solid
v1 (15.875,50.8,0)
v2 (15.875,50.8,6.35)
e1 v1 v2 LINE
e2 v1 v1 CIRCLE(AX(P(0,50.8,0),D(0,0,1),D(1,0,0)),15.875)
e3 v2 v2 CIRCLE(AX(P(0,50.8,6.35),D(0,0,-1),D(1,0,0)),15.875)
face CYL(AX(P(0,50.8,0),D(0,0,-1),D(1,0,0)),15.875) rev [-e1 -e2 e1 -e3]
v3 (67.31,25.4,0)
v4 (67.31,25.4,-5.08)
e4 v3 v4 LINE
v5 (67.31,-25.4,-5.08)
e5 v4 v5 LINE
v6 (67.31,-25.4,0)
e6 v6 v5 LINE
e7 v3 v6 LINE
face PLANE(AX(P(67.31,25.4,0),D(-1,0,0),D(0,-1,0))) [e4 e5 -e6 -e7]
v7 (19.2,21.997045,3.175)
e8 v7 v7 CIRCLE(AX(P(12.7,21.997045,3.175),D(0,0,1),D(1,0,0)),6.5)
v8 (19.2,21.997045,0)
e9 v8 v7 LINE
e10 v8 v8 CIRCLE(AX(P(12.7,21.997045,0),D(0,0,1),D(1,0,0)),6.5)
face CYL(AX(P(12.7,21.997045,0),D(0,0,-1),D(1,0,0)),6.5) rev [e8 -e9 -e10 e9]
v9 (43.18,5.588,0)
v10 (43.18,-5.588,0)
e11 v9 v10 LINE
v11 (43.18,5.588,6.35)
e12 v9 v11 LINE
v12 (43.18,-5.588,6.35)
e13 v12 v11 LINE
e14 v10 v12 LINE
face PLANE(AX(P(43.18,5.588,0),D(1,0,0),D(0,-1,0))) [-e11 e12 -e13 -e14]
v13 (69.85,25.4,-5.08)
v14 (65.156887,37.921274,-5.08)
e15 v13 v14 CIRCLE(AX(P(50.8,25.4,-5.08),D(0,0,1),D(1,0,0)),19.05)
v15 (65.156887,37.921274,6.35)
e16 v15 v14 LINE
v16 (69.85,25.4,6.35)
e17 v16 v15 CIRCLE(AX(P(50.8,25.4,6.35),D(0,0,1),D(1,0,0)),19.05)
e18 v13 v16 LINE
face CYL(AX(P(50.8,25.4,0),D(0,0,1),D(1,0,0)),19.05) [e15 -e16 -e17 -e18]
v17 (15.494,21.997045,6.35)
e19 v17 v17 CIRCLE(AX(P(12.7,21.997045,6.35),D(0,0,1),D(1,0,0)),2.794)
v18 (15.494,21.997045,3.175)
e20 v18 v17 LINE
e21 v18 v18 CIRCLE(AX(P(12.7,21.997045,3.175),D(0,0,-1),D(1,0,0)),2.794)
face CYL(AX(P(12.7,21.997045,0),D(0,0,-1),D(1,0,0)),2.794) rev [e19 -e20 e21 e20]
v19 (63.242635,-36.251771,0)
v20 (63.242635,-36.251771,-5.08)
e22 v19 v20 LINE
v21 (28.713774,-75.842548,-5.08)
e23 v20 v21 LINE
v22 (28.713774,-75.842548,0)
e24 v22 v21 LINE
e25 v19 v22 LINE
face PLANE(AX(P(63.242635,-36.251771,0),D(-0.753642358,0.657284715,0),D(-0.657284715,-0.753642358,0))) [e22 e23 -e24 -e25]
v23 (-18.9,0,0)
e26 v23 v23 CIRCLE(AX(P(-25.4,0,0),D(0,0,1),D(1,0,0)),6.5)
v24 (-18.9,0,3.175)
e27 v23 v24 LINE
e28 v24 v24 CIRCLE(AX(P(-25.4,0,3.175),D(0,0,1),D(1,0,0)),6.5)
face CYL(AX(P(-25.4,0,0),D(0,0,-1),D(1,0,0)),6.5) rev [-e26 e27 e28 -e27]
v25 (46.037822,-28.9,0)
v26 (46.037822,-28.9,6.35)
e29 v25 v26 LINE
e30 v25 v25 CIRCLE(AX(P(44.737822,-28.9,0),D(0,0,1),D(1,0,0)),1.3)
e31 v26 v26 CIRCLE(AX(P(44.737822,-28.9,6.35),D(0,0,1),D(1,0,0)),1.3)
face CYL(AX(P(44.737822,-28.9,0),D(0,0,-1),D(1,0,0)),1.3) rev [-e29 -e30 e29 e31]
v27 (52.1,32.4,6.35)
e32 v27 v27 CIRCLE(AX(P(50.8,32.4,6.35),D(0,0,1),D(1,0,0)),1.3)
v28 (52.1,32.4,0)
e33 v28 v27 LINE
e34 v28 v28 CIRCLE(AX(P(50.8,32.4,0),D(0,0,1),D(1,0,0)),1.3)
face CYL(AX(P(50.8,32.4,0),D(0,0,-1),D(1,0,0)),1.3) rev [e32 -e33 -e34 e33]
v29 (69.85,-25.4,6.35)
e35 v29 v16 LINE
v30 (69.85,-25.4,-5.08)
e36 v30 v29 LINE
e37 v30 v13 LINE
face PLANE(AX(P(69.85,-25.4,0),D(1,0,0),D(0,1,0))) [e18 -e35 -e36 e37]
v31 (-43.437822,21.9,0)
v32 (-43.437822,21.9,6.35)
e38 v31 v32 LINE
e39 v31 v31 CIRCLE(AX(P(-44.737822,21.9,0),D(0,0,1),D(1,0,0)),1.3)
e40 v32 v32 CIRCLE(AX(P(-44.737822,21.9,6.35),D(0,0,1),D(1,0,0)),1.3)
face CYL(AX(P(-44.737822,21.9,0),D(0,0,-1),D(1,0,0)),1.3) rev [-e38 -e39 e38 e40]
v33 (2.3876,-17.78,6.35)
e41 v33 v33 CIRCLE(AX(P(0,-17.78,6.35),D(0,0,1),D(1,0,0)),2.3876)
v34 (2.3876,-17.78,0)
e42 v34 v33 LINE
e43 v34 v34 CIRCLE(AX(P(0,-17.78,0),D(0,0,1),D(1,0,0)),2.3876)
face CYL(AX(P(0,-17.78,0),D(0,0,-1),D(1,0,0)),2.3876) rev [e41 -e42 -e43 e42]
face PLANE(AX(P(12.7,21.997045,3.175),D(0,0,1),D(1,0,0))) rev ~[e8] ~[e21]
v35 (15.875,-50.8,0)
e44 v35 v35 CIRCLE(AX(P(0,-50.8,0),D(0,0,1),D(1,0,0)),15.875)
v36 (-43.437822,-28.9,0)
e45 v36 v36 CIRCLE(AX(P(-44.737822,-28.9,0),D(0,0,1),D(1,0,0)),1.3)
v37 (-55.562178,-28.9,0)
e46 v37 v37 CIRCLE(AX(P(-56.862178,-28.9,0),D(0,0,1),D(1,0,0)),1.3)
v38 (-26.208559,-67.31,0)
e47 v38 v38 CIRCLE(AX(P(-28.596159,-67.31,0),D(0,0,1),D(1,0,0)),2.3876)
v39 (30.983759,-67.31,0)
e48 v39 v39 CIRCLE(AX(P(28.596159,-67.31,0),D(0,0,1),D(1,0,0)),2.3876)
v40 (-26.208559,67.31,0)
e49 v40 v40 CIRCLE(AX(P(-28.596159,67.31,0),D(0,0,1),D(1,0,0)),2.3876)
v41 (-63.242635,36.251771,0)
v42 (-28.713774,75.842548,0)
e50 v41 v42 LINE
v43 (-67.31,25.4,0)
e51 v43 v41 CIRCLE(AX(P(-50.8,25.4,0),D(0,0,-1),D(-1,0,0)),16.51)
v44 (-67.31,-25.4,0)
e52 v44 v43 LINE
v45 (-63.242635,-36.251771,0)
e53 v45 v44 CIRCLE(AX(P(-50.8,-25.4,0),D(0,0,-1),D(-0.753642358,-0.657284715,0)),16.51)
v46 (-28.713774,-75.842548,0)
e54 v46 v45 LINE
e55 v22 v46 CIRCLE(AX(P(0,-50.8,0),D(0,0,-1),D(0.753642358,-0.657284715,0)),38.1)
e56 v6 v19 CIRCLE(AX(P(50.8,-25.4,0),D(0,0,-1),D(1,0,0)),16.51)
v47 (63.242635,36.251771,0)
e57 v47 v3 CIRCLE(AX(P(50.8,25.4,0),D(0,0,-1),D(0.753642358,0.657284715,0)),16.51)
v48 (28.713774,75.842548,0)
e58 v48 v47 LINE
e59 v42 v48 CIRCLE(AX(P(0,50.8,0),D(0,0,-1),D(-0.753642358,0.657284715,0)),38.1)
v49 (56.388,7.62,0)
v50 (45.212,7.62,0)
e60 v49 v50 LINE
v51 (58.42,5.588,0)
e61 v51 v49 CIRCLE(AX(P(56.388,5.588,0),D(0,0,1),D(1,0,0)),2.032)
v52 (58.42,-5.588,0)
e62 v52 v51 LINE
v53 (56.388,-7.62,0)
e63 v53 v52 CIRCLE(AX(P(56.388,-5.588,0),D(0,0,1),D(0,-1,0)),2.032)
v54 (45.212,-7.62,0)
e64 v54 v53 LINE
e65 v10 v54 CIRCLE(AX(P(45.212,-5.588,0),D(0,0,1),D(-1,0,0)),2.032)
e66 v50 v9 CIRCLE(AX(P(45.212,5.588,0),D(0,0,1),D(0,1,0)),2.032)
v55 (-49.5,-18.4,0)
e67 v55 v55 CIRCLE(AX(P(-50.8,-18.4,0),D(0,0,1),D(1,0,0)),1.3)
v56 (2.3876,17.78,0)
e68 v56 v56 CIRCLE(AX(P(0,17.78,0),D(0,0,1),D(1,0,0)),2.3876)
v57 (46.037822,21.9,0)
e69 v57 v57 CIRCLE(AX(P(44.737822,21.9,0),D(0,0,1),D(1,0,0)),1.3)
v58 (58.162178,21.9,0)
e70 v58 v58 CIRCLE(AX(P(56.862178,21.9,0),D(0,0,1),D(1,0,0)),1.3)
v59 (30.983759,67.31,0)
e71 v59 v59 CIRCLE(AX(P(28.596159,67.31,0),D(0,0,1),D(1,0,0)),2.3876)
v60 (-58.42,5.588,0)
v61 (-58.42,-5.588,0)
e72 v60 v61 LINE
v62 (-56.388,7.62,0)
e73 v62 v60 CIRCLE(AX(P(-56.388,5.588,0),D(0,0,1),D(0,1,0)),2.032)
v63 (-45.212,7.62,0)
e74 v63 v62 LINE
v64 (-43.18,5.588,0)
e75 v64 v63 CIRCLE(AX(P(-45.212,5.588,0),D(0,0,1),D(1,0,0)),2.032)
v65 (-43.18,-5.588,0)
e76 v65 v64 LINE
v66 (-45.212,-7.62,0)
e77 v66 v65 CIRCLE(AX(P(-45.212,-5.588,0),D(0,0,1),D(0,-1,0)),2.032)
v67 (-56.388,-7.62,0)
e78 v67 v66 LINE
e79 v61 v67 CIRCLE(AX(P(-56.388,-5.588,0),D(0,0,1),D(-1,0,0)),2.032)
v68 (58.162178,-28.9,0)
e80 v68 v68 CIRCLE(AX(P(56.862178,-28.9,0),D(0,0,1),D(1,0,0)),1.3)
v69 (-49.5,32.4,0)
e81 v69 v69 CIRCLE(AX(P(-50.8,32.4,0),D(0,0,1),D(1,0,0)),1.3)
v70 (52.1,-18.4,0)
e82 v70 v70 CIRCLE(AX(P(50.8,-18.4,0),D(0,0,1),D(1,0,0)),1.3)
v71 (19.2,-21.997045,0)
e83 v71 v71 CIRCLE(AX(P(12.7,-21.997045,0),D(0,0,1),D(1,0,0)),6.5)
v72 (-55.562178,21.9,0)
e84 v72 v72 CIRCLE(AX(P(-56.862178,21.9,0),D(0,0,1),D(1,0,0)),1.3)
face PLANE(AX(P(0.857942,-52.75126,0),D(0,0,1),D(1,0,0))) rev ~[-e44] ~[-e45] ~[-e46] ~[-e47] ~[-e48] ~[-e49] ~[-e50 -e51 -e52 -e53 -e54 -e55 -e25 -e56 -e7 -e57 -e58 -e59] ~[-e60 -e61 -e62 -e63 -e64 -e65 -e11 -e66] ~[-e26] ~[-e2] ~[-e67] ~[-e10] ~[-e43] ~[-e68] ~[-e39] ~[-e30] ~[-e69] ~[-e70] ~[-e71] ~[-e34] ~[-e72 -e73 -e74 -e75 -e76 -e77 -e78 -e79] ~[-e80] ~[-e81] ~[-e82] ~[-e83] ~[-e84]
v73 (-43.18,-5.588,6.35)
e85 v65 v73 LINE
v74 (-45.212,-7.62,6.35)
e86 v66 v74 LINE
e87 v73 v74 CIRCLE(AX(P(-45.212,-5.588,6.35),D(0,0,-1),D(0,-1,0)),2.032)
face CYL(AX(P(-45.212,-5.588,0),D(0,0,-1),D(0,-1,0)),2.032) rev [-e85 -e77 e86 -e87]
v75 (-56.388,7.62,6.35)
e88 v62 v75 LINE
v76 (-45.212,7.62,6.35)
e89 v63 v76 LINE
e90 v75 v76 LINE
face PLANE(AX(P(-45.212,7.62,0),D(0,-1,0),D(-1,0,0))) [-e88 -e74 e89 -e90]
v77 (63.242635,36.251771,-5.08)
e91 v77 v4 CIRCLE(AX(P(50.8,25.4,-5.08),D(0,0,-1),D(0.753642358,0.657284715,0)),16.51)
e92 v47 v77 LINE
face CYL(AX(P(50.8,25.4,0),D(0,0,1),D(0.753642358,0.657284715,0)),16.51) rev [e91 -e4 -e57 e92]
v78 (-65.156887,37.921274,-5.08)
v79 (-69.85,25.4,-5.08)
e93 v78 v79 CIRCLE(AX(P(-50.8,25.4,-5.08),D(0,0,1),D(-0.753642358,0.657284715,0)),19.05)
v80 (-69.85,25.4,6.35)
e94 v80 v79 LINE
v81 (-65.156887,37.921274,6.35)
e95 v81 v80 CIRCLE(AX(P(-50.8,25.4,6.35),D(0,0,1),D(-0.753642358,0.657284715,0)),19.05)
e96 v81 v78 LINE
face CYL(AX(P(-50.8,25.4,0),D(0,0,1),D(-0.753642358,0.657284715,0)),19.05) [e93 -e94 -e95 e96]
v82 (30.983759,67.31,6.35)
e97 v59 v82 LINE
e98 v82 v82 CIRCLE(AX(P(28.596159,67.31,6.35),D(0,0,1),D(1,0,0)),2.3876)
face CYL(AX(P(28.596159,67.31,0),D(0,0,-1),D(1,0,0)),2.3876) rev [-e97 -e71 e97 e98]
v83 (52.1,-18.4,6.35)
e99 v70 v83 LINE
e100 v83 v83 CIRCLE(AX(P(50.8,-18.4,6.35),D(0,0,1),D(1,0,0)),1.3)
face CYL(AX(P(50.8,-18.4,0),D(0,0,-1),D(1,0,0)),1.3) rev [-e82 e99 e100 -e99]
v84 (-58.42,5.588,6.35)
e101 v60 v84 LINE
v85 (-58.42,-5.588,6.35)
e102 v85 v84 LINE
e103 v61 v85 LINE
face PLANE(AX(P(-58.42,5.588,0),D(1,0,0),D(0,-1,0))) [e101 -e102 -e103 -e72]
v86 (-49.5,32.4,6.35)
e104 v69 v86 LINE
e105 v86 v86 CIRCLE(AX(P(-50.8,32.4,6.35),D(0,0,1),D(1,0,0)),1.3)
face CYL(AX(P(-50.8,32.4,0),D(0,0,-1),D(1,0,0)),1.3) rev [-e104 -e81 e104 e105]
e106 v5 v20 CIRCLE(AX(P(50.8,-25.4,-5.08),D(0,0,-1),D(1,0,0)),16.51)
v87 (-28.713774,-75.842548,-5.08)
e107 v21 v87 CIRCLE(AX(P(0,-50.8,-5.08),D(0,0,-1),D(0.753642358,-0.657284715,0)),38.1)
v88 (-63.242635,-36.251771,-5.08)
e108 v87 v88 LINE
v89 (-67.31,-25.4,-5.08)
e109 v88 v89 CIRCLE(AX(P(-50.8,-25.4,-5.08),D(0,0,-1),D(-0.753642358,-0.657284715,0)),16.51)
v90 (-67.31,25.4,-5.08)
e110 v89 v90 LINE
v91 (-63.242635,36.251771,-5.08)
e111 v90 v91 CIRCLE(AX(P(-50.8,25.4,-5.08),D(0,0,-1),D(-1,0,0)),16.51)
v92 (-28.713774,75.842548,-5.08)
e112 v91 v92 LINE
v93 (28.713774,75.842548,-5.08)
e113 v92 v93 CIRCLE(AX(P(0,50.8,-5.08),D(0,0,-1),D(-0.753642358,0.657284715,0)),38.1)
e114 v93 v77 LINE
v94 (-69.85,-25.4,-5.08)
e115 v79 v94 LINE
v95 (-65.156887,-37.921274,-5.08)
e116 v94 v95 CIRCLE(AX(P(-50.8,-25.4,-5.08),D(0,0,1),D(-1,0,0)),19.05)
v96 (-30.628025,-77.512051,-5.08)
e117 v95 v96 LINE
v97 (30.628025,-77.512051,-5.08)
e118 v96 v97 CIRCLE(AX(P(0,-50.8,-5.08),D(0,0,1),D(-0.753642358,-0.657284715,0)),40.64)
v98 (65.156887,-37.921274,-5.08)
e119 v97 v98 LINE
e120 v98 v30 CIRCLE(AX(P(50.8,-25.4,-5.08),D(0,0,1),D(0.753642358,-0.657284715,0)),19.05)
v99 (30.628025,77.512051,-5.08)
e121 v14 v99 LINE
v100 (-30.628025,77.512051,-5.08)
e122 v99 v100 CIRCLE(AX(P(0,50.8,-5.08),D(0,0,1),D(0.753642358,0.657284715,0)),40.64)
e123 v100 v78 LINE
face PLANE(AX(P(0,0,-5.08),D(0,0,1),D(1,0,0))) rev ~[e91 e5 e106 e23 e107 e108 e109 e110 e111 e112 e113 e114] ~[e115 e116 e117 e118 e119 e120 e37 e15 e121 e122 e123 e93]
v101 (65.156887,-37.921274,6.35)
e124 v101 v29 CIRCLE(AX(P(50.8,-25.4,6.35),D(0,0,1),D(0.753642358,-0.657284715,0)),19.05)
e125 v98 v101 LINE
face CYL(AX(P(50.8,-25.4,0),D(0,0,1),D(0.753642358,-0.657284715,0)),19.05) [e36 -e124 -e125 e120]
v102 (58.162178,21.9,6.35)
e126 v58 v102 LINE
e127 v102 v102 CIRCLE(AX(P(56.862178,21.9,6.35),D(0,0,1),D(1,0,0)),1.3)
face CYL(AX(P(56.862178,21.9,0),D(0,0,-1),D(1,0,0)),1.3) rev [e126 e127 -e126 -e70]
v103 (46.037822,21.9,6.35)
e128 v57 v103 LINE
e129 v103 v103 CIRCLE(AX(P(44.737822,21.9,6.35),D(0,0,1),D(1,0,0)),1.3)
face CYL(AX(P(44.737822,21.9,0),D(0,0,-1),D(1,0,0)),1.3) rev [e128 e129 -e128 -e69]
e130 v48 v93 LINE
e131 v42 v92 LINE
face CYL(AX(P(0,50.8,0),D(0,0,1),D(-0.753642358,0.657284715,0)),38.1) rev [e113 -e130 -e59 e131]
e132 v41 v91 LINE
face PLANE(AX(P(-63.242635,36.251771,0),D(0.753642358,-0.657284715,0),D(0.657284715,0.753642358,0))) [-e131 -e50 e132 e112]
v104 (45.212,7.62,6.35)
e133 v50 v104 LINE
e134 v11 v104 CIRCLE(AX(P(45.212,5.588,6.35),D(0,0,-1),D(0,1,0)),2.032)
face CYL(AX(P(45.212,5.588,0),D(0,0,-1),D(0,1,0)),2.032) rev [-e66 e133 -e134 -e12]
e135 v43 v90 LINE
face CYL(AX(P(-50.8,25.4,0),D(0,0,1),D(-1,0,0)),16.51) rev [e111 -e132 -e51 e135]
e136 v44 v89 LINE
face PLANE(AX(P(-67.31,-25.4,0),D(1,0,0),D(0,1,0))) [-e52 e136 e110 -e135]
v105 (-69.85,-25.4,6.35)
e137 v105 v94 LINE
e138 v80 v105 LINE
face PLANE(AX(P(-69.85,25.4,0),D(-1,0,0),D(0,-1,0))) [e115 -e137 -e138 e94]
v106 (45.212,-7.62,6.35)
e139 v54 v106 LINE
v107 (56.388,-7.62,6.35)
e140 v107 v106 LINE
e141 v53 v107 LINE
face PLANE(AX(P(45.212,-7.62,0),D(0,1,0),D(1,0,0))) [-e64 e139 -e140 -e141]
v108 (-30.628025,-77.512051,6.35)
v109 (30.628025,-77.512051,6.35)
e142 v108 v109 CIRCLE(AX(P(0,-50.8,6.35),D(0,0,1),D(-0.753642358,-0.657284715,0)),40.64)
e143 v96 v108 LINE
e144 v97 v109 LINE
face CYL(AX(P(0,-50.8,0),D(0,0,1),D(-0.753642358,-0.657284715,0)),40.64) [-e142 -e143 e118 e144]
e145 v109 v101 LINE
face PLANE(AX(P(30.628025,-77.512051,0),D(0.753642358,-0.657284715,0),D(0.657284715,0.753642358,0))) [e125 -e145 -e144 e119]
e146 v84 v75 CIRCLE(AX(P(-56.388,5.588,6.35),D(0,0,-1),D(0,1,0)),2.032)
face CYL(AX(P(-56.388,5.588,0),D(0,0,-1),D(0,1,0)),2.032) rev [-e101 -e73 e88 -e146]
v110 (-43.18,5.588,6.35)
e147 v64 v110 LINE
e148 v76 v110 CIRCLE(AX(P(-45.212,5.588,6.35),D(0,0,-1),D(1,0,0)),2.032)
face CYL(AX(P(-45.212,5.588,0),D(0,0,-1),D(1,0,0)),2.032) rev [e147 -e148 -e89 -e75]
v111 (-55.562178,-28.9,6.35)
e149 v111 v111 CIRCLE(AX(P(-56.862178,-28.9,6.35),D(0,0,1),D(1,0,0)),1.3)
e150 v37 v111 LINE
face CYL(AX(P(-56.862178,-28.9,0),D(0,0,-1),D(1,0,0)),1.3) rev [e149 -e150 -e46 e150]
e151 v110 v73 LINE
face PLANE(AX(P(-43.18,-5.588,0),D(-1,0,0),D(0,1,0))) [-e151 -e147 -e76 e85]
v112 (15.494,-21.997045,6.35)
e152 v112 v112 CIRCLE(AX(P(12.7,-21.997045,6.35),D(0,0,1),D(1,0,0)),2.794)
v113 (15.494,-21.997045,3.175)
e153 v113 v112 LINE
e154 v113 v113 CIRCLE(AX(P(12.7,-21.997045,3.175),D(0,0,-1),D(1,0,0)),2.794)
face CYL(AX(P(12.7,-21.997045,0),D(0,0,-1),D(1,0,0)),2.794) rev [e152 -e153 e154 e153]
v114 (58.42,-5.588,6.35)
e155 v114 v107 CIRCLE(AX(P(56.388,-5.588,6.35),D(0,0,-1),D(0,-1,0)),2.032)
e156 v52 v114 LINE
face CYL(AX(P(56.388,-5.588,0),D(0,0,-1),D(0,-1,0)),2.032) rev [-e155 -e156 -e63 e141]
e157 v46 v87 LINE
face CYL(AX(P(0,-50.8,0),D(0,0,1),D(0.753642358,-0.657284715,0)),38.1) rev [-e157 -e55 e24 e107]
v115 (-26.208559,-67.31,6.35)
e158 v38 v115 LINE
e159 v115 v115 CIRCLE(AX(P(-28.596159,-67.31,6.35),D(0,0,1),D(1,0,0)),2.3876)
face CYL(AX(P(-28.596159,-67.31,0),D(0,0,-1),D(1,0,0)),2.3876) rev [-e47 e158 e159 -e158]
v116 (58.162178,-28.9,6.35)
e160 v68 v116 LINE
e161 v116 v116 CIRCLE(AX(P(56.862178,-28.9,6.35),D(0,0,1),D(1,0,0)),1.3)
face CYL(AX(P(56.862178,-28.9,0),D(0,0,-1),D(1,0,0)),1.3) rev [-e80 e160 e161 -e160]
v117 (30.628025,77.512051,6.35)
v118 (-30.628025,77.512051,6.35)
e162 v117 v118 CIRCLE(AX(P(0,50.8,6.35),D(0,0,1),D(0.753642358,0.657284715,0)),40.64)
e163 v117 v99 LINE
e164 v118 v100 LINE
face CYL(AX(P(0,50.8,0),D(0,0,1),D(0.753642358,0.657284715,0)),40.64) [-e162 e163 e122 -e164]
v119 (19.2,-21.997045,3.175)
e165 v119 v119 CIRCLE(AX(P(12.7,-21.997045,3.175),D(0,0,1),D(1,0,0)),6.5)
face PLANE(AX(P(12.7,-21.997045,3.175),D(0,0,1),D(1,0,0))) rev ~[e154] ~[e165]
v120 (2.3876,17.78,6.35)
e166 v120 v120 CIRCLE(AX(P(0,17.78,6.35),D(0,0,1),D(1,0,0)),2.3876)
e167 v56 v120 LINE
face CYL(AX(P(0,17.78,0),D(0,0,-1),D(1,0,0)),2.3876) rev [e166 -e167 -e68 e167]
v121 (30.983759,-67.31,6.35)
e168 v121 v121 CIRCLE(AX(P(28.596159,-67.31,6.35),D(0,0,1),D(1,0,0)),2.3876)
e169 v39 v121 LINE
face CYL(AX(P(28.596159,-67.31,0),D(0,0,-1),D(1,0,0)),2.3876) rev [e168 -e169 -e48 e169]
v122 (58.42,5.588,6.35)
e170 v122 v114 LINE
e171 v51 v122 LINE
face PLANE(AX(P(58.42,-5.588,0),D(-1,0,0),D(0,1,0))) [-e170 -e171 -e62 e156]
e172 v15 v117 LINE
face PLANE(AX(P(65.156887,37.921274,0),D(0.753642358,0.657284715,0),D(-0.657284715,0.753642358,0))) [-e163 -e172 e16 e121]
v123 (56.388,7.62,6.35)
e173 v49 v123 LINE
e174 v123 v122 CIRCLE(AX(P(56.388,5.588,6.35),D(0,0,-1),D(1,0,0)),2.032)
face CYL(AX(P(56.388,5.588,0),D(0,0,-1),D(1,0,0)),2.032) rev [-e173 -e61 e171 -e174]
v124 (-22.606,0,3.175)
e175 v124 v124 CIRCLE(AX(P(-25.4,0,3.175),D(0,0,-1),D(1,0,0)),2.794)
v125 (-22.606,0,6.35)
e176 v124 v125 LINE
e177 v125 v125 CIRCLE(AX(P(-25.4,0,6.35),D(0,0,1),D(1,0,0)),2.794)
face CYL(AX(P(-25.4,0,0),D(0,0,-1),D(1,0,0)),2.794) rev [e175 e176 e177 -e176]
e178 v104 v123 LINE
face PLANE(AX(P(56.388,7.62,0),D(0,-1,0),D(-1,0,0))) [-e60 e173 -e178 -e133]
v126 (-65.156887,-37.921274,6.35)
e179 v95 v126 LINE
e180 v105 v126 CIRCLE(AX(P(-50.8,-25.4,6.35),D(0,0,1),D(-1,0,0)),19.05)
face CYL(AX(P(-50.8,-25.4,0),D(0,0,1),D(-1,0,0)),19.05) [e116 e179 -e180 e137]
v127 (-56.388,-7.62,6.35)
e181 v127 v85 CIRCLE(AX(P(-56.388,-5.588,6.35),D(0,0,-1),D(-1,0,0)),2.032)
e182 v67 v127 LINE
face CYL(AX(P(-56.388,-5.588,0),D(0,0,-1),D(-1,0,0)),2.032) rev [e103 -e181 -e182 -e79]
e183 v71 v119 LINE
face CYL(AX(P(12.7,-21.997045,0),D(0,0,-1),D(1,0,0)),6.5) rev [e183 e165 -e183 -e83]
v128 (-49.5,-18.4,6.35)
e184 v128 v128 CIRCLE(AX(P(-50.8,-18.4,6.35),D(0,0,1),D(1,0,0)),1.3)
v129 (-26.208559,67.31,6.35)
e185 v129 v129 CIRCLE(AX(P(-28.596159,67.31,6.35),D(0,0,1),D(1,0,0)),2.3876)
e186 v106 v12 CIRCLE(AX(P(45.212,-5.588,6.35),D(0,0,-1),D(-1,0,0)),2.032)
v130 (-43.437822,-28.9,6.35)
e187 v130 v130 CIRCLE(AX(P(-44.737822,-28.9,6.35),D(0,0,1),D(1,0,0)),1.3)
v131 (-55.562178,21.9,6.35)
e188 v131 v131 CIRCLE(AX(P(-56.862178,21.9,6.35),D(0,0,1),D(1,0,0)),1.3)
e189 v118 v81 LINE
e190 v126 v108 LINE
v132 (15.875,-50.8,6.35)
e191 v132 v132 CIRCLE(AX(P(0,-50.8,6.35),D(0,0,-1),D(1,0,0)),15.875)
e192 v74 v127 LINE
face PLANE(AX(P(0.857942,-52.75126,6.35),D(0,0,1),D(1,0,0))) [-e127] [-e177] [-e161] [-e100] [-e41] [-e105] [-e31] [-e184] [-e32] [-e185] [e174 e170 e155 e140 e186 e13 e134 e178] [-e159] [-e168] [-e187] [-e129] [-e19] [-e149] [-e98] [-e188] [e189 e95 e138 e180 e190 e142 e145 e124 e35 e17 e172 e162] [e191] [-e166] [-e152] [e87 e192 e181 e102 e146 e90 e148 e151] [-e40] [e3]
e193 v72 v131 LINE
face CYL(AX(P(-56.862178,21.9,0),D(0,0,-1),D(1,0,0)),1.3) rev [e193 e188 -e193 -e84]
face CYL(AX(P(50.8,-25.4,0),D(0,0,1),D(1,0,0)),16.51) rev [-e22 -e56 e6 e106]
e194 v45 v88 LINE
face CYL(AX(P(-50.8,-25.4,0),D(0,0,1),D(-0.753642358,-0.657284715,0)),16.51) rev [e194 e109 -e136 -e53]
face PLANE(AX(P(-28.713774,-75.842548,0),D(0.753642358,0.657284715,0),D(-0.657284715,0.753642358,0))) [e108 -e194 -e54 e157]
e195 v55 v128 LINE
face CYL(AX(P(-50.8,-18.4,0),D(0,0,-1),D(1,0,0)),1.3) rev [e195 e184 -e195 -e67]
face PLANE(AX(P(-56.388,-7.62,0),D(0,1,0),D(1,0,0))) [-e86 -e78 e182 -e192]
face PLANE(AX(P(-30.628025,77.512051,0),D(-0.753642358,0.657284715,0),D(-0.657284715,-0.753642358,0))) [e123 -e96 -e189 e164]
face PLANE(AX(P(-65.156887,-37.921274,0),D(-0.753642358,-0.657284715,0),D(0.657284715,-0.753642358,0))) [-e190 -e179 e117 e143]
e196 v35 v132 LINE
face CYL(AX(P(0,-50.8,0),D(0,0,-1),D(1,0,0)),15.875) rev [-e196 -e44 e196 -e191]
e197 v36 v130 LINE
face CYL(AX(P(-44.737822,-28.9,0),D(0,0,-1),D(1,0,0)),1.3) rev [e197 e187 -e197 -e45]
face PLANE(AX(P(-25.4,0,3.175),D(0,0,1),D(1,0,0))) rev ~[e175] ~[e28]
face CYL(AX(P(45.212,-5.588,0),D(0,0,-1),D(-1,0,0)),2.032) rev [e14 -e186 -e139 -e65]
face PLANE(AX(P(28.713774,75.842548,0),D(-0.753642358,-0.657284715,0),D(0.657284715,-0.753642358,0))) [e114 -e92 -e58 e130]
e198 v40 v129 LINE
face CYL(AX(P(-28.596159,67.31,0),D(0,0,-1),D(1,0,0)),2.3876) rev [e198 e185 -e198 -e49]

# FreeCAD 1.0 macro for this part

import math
import FreeCAD as App
import Part
import Sketcher
from FreeCAD import Vector
Q = App.Units.Quantity

doc = App.newDocument("Part")
params = doc.addObject("Spreadsheet::Sheet", "Params")
for row, (alias, value) in enumerate([
    ("sketch1_radius", "1.6 in"),
    ("sketch1_diameter", "0.22 in"),
    ("sketch1_height", "2 in"),
    ("sketch1_radius2", "0.75 in"),
    ("sketch1_diameter2", "0.188 in"),
    ("pad1_length", "0.25 in"),
    ("pocket1_length", "0.125 in"),
    ("sketch3_radius", "1.6 in"),
    ("sketch3_radius2", "1.5 in"),
    ("sketch3_height", "2 in"),
    ("sketch3_radius3", "0.75 in"),
    ("pad2_length", "0.2 in"),
    ("sketch4_diameter", "1.25 in"),
    ("sketch4_radius", "0.08 in"),
    ("sketch4_width", "0.44 in"),
    ("pocket2_length", "1 in"),
], start=1):
    params.set(f"A{row}", alias)
    params.set(f"B{row}", "=" + value)
    params.setAlias(f"B{row}", alias)

body = doc.addObject("PartDesign::Body", "Body")

# Sketch on XY plane
sketch1 = body.newObject("Sketcher::SketchObject", "Sketch")
sketch1.AttachmentSupport = (doc.getObject("XY_Plane"), [""])
sketch1.MapMode = "FlatFace"
sketch1.addGeometry(Part.ArcOfCircle(Part.Circle(Vector(0, -50.8, 0), Vector(0, 0, 1), 40.64), math.radians(-138.906883), math.radians(-41.093117)), False)
sketch1.addGeometry(Part.LineSegment(Vector(30.628025, -77.512051, 0), Vector(65.156887, -37.921274, 0)), False)
sketch1.addGeometry(Part.ArcOfCircle(Part.Circle(Vector(50.8, -25.4, 0), Vector(0, 0, 1), 19.05), math.radians(-41.093117), math.radians(0)), False)
sketch1.addGeometry(Part.LineSegment(Vector(69.85, -25.4, 0), Vector(69.85, 25.4, 0)), False)
sketch1.addGeometry(Part.ArcOfCircle(Part.Circle(Vector(50.8, 25.4, 0), Vector(0, 0, 1), 19.05), math.radians(0), math.radians(41.093117)), False)
sketch1.addGeometry(Part.LineSegment(Vector(65.156887, 37.921274, 0), Vector(30.628025, 77.512051, 0)), False)
sketch1.addGeometry(Part.ArcOfCircle(Part.Circle(Vector(0, 50.8, 0), Vector(0, 0, 1), 40.64), math.radians(41.093117), math.radians(138.906883)), False)
sketch1.addGeometry(Part.LineSegment(Vector(-30.628025, 77.512051, 0), Vector(-65.156887, 37.921274, 0)), False)
sketch1.addGeometry(Part.ArcOfCircle(Part.Circle(Vector(-50.8, 25.4, 0), Vector(0, 0, 1), 19.05), math.radians(138.906883), math.radians(180)), False)
sketch1.addGeometry(Part.LineSegment(Vector(-69.85, 25.4, 0), Vector(-69.85, -25.4, 0)), False)
sketch1.addGeometry(Part.ArcOfCircle(Part.Circle(Vector(-50.8, -25.4, 0), Vector(0, 0, 1), 19.05), math.radians(180), math.radians(221.093117)), False)
sketch1.addGeometry(Part.LineSegment(Vector(-65.156887, -37.921274, 0), Vector(-30.628025, -77.512051, 0)), False)
sketch1.addGeometry(Part.Circle(Vector(-28.596159, -67.31, 0), Vector(0, 0, 1), 2.3876), False)
sketch1.addGeometry(Part.Circle(Vector(-56.862178, -28.9, 0), Vector(0, 0, 1), 1.3), False)
sketch1.addGeometry(Part.Circle(Vector(-44.737822, -28.9, 0), Vector(0, 0, 1), 1.3), False)
sketch1.addGeometry(Part.Circle(Vector(-50.8, -18.4, 0), Vector(0, 0, 1), 1.3), False)
sketch1.addGeometry(Part.Circle(Vector(28.596159, -67.31, 0), Vector(0, 0, 1), 2.3876), False)
sketch1.addGeometry(Part.Circle(Vector(0, -17.78, 0), Vector(0, 0, 1), 2.3876), False)
sketch1.addGeometry(Part.Circle(Vector(12.7, -21.997045, 0), Vector(0, 0, 1), 2.794), False)
sketch1.addGeometry(Part.Circle(Vector(44.737822, -28.9, 0), Vector(0, 0, 1), 1.3), False)
sketch1.addGeometry(Part.Circle(Vector(56.862178, -28.9, 0), Vector(0, 0, 1), 1.3), False)
sketch1.addGeometry(Part.Circle(Vector(50.8, -18.4, 0), Vector(0, 0, 1), 1.3), False)
sketch1.addGeometry(Part.Circle(Vector(-56.862178, 21.9, 0), Vector(0, 0, 1), 1.3), False)
sketch1.addGeometry(Part.Circle(Vector(-44.737822, 21.9, 0), Vector(0, 0, 1), 1.3), False)
sketch1.addGeometry(Part.Circle(Vector(-50.8, 32.4, 0), Vector(0, 0, 1), 1.3), False)
sketch1.addGeometry(Part.Circle(Vector(-25.4, 0, 0), Vector(0, 0, 1), 2.794), False)
sketch1.addGeometry(Part.Circle(Vector(-28.596159, 67.31, 0), Vector(0, 0, 1), 2.3876), False)
sketch1.addGeometry(Part.Circle(Vector(0, 17.78, 0), Vector(0, 0, 1), 2.3876), False)
sketch1.addGeometry(Part.Circle(Vector(12.7, 21.997045, 0), Vector(0, 0, 1), 2.794), False)
sketch1.addGeometry(Part.Circle(Vector(44.737822, 21.9, 0), Vector(0, 0, 1), 1.3), False)
sketch1.addGeometry(Part.Circle(Vector(56.862178, 21.9, 0), Vector(0, 0, 1), 1.3), False)
sketch1.addGeometry(Part.Circle(Vector(50.8, 32.4, 0), Vector(0, 0, 1), 1.3), False)
sketch1.addGeometry(Part.Circle(Vector(28.596159, 67.31, 0), Vector(0, 0, 1), 2.3876), False)
sketch1.addConstraint(Sketcher.Constraint("Tangent", 0, 2, 1, 1))
sketch1.addConstraint(Sketcher.Constraint("Tangent", 1, 2, 2, 1))
sketch1.addConstraint(Sketcher.Constraint("Tangent", 2, 2, 3, 1))
sketch1.addConstraint(Sketcher.Constraint("Tangent", 3, 2, 4, 1))
sketch1.addConstraint(Sketcher.Constraint("Tangent", 4, 2, 5, 1))
sketch1.addConstraint(Sketcher.Constraint("Tangent", 5, 2, 6, 1))
sketch1.addConstraint(Sketcher.Constraint("Tangent", 6, 2, 7, 1))
sketch1.addConstraint(Sketcher.Constraint("Tangent", 7, 2, 8, 1))
sketch1.addConstraint(Sketcher.Constraint("Tangent", 8, 2, 9, 1))
sketch1.addConstraint(Sketcher.Constraint("Tangent", 9, 2, 10, 1))
sketch1.addConstraint(Sketcher.Constraint("Tangent", 10, 2, 11, 1))
sketch1.addConstraint(Sketcher.Constraint("Tangent", 11, 2, 0, 1))
sketch1.addConstraint(Sketcher.Constraint("Vertical", 3))
sketch1.addConstraint(Sketcher.Constraint("Vertical", 9))
sketch1.addConstraint(Sketcher.Constraint("Equal", 2, 4))
sketch1.addConstraint(Sketcher.Constraint("Equal", 0, 6))
sketch1.addConstraint(Sketcher.Constraint("Equal", 4, 8))
sketch1.addConstraint(Sketcher.Constraint("Equal", 8, 10))
sketch1.addConstraint(Sketcher.Constraint("Equal", 13, 14))
sketch1.addConstraint(Sketcher.Constraint("Equal", 14, 15))
sketch1.addConstraint(Sketcher.Constraint("Equal", 12, 16))
sketch1.addConstraint(Sketcher.Constraint("Equal", 16, 17))
sketch1.addConstraint(Sketcher.Constraint("Equal", 15, 19))
sketch1.addConstraint(Sketcher.Constraint("Equal", 19, 20))
sketch1.addConstraint(Sketcher.Constraint("Equal", 20, 21))
sketch1.addConstraint(Sketcher.Constraint("Equal", 21, 22))
sketch1.addConstraint(Sketcher.Constraint("Equal", 22, 23))
sketch1.addConstraint(Sketcher.Constraint("Equal", 23, 24))
sketch1.addConstraint(Sketcher.Constraint("Equal", 18, 25))
sketch1.addConstraint(Sketcher.Constraint("Equal", 17, 26))
sketch1.addConstraint(Sketcher.Constraint("Equal", 26, 27))
sketch1.addConstraint(Sketcher.Constraint("Equal", 25, 28))
sketch1.addConstraint(Sketcher.Constraint("Equal", 24, 29))
sketch1.addConstraint(Sketcher.Constraint("Equal", 29, 30))
sketch1.addConstraint(Sketcher.Constraint("Equal", 30, 31))
sketch1.addConstraint(Sketcher.Constraint("Equal", 27, 32))
sketch1.addConstraint(Sketcher.Constraint("Symmetric", 0, 3, 6, 3, -1, 1))
sketch1.addConstraint(Sketcher.Constraint("Symmetric", 2, 3, 8, 3, -1, 1))
sketch1.addConstraint(Sketcher.Constraint("Symmetric", 16, 3, 26, 3, -1, 1))
sketch1.addConstraint(Sketcher.Constraint("Symmetric", 17, 3, 27, 3, -1, 1))
sketch1.addConstraint(Sketcher.Constraint("Symmetric", 12, 3, 32, 3, -1, 1))
sketch1.addConstraint(Sketcher.Constraint("Symmetric", 12, 3, 16, 3, -2))
sketch1.addConstraint(Sketcher.Constraint("Symmetric", 14, 3, 19, 3, -2))
sketch1.addConstraint(Sketcher.Constraint("Symmetric", 13, 3, 20, 3, -2))
sketch1.addConstraint(Sketcher.Constraint("Symmetric", 15, 3, 21, 3, -2))
sketch1.addConstraint(Sketcher.Constraint("Symmetric", 23, 3, 29, 3, -2))
sketch1.addConstraint(Sketcher.Constraint("Symmetric", 22, 3, 30, 3, -2))
sketch1.addConstraint(Sketcher.Constraint("Symmetric", 24, 3, 31, 3, -2))
sketch1.addConstraint(Sketcher.Constraint("Symmetric", 5, 2, 6, 2, -2))
sketch1.addConstraint(Sketcher.Constraint("Symmetric", 18, 3, 28, 3, -1))
sketch1.addConstraint(Sketcher.Constraint("PointOnObject", 17, 3, -2))
sketch1.addConstraint(Sketcher.Constraint("PointOnObject", 25, 3, -1))
sketch1.addConstraint(Sketcher.Constraint("Parallel", 5, 11))
sketch1.addConstraint(Sketcher.Constraint("Horizontal", 13, 3, 14, 3))
sketch1.addConstraint(Sketcher.Constraint("Horizontal", 22, 3, 23, 3))
sketch1.addConstraint(Sketcher.Constraint("Vertical", 10, 3, 15, 3))
sketch1.addConstraint(Sketcher.Constraint("Vertical", 13, 3, 22, 3))
sketch1.addConstraint(Sketcher.Constraint("Vertical", 14, 3, 23, 3))
sketch1.addConstraint(Sketcher.Constraint("Vertical", 15, 3, 24, 3))
sketch1.addConstraint(Sketcher.Constraint("Radius", 0, Q("1.6 in")))
sketch1.addConstraint(Sketcher.Constraint("Diameter", 18, Q("0.22 in")))
sketch1.addConstraint(Sketcher.Constraint("DistanceY", 3, 1, 3, 2, Q("2 in")))
sketch1.addConstraint(Sketcher.Constraint("Radius", 2, Q("0.75 in")))
sketch1.addConstraint(Sketcher.Constraint("Diameter", 12, Q("0.188 in")))
sketch1.addConstraint(Sketcher.Constraint("DistanceY", 0, 3, -1, 1, Q("2 in")))
sketch1.addConstraint(Sketcher.Constraint("DistanceX", -1, 1, 2, 3, Q("2 in")))
sketch1.addConstraint(Sketcher.Constraint("DistanceX", 25, 3, -1, 1, Q("1 in")))
sketch1.addConstraint(Sketcher.Constraint("DistanceY", 13, 3, 22, 3, Q("2 in")))
sketch1.addConstraint(Sketcher.Constraint("DistanceY", 15, 3, 24, 3, Q("2 in")))
sketch1.addConstraint(Sketcher.Constraint("DistanceY", 17, 3, -1, 1, Q("0.7 in")))
sketch1.addConstraint(Sketcher.Constraint("DistanceX", -1, 1, 18, 3, Q("0.5 in")))
sketch1.addConstraint(Sketcher.Constraint("Diameter", 13, 2.6))
sketch1.addConstraint(Sketcher.Constraint("DistanceY", 12, 3, -1, 1, Q("2.65 in")))
sketch1.addConstraint(Sketcher.Constraint("DistanceX", 19, 3, 1, 2, Q("0.8039002 in")))
sketch1.addConstraint(Sketcher.Constraint("DistanceY", 13, 3, -1, 1, 28.9))
sketch1.addConstraint(Sketcher.Constraint("DistanceY", 15, 3, -1, 1, 18.4))
sketch1.addConstraint(Sketcher.Constraint("DistanceX", 12, 3, -1, 1, 28.596159))
sketch1.addConstraint(Sketcher.Constraint("DistanceX", 13, 3, 12, 3, 28.266019))
sketch1.addConstraint(Sketcher.Constraint("DistanceY", 18, 3, 28, 3, 43.994091))
sketch1.setExpression("Constraints[59]", "Params.sketch1_radius")
sketch1.setExpression("Constraints[60]", "Params.sketch1_diameter")
sketch1.setExpression("Constraints[61]", "Params.sketch1_height")
sketch1.setExpression("Constraints[62]", "Params.sketch1_radius2")
sketch1.setExpression("Constraints[63]", "Params.sketch1_diameter2")
pad1 = body.newObject("PartDesign::Pad", "Pad")
pad1.Profile = sketch1
pad1.setExpression("Length", "Params.pad1_length")

# Sketch on XY plane
sketch2 = body.newObject("Sketcher::SketchObject", "Sketch001")
sketch2.AttachmentSupport = (doc.getObject("XY_Plane"), [""])
sketch2.MapMode = "FlatFace"
sketch2.addGeometry(Part.Circle(Vector(-25.4, 0, 0), Vector(0, 0, 1), 6.5), False)
sketch2.addGeometry(Part.Circle(Vector(12.7, 21.997045, 0), Vector(0, 0, 1), 6.5), False)
sketch2.addGeometry(Part.Circle(Vector(12.7, -21.997045, 0), Vector(0, 0, 1), 6.5), False)
sketch2.addConstraint(Sketcher.Constraint("Equal", 0, 1))
sketch2.addConstraint(Sketcher.Constraint("Equal", 1, 2))
sketch2.addConstraint(Sketcher.Constraint("Symmetric", 1, 3, 2, 3, -1))
sketch2.addConstraint(Sketcher.Constraint("PointOnObject", 0, 3, -1))
sketch2.addConstraint(Sketcher.Constraint("DistanceX", 0, 3, -1, 1, Q("1 in")))
sketch2.addConstraint(Sketcher.Constraint("DistanceX", -1, 1, 1, 3, Q("0.5 in")))
sketch2.addConstraint(Sketcher.Constraint("Diameter", 0, 13.0))
sketch2.addConstraint(Sketcher.Constraint("DistanceY", 2, 3, 1, 3, 43.994091))
pocket1 = body.newObject("PartDesign::Pocket", "Pocket")
pocket1.Profile = sketch2
pocket1.setExpression("Length", "Params.pocket1_length")
pocket1.Reversed = True

# Sketch on XY plane
sketch3 = body.newObject("Sketcher::SketchObject", "Sketch002")
sketch3.AttachmentSupport = (doc.getObject("XY_Plane"), [""])
sketch3.MapMode = "FlatFace"
sketch3.addGeometry(Part.ArcOfCircle(Part.Circle(Vector(-50.8, -25.4, 0), Vector(0, 0, 1), 19.05), math.radians(180), math.radians(221.093117)), False)
sketch3.addGeometry(Part.LineSegment(Vector(-65.156887, -37.921274, 0), Vector(-30.628025, -77.512051, 0)), False)
sketch3.addGeometry(Part.ArcOfCircle(Part.Circle(Vector(0, -50.8, 0), Vector(0, 0, 1), 40.64), math.radians(-138.906883), math.radians(-41.093117)), False)
sketch3.addGeometry(Part.LineSegment(Vector(30.628025, -77.512051, 0), Vector(65.156887, -37.921274, 0)), False)
sketch3.addGeometry(Part.ArcOfCircle(Part.Circle(Vector(50.8, -25.4, 0), Vector(0, 0, 1), 19.05), math.radians(-41.093117), math.radians(0)), False)
sketch3.addGeometry(Part.LineSegment(Vector(69.85, -25.4, 0), Vector(69.85, 25.4, 0)), False)
sketch3.addGeometry(Part.ArcOfCircle(Part.Circle(Vector(50.8, 25.4, 0), Vector(0, 0, 1), 19.05), math.radians(0), math.radians(41.093117)), False)
sketch3.addGeometry(Part.LineSegment(Vector(65.156887, 37.921274, 0), Vector(30.628025, 77.512051, 0)), False)
sketch3.addGeometry(Part.ArcOfCircle(Part.Circle(Vector(0, 50.8, 0), Vector(0, 0, 1), 40.64), math.radians(41.093117), math.radians(138.906883)), False)
sketch3.addGeometry(Part.LineSegment(Vector(-30.628025, 77.512051, 0), Vector(-65.156887, 37.921274, 0)), False)
sketch3.addGeometry(Part.ArcOfCircle(Part.Circle(Vector(-50.8, 25.4, 0), Vector(0, 0, 1), 19.05), math.radians(138.906883), math.radians(180)), False)
sketch3.addGeometry(Part.LineSegment(Vector(-69.85, 25.4, 0), Vector(-69.85, -25.4, 0)), False)
sketch3.addGeometry(Part.ArcOfCircle(Part.Circle(Vector(0, -50.8, 0), Vector(0, 0, 1), 38.1), math.radians(-138.906883), math.radians(-41.093117)), False)
sketch3.addGeometry(Part.LineSegment(Vector(-28.713774, -75.842548, 0), Vector(-63.242635, -36.251771, 0)), False)
sketch3.addGeometry(Part.ArcOfCircle(Part.Circle(Vector(-50.8, -25.4, 0), Vector(0, 0, 1), 16.51), math.radians(180), math.radians(221.093117)), False)
sketch3.addGeometry(Part.LineSegment(Vector(-67.31, -25.4, 0), Vector(-67.31, 25.4, 0)), False)
sketch3.addGeometry(Part.ArcOfCircle(Part.Circle(Vector(-50.8, 25.4, 0), Vector(0, 0, 1), 16.51), math.radians(138.906883), math.radians(180)), False)
sketch3.addGeometry(Part.LineSegment(Vector(-63.242635, 36.251771, 0), Vector(-28.713774, 75.842548, 0)), False)
sketch3.addGeometry(Part.ArcOfCircle(Part.Circle(Vector(0, 50.8, 0), Vector(0, 0, 1), 38.1), math.radians(41.093117), math.radians(138.906883)), False)
sketch3.addGeometry(Part.LineSegment(Vector(28.713774, 75.842548, 0), Vector(63.242635, 36.251771, 0)), False)
sketch3.addGeometry(Part.ArcOfCircle(Part.Circle(Vector(50.8, 25.4, 0), Vector(0, 0, 1), 16.51), math.radians(0), math.radians(41.093117)), False)
sketch3.addGeometry(Part.LineSegment(Vector(67.31, 25.4, 0), Vector(67.31, -25.4, 0)), False)
sketch3.addGeometry(Part.ArcOfCircle(Part.Circle(Vector(50.8, -25.4, 0), Vector(0, 0, 1), 16.51), math.radians(-41.093117), math.radians(0)), False)
sketch3.addGeometry(Part.LineSegment(Vector(63.242635, -36.251771, 0), Vector(28.713774, -75.842548, 0)), False)
sketch3.addConstraint(Sketcher.Constraint("Tangent", 0, 2, 1, 1))
sketch3.addConstraint(Sketcher.Constraint("Tangent", 1, 2, 2, 1))
sketch3.addConstraint(Sketcher.Constraint("Tangent", 2, 2, 3, 1))
sketch3.addConstraint(Sketcher.Constraint("Tangent", 3, 2, 4, 1))
sketch3.addConstraint(Sketcher.Constraint("Tangent", 4, 2, 5, 1))
sketch3.addConstraint(Sketcher.Constraint("Tangent", 5, 2, 6, 1))
sketch3.addConstraint(Sketcher.Constraint("Tangent", 6, 2, 7, 1))
sketch3.addConstraint(Sketcher.Constraint("Tangent", 7, 2, 8, 1))
sketch3.addConstraint(Sketcher.Constraint("Tangent", 8, 2, 9, 1))
sketch3.addConstraint(Sketcher.Constraint("Tangent", 9, 2, 10, 1))
sketch3.addConstraint(Sketcher.Constraint("Tangent", 10, 2, 11, 1))
sketch3.addConstraint(Sketcher.Constraint("Tangent", 11, 2, 0, 1))
sketch3.addConstraint(Sketcher.Constraint("Tangent", 12, 1, 13, 1))
sketch3.addConstraint(Sketcher.Constraint("Tangent", 13, 2, 14, 2))
sketch3.addConstraint(Sketcher.Constraint("Tangent", 14, 1, 15, 1))
sketch3.addConstraint(Sketcher.Constraint("Tangent", 15, 2, 16, 2))
sketch3.addConstraint(Sketcher.Constraint("Tangent", 16, 1, 17, 1))
sketch3.addConstraint(Sketcher.Constraint("Tangent", 17, 2, 18, 2))
sketch3.addConstraint(Sketcher.Constraint("Tangent", 18, 1, 19, 1))
sketch3.addConstraint(Sketcher.Constraint("Tangent", 19, 2, 20, 2))
sketch3.addConstraint(Sketcher.Constraint("Tangent", 20, 1, 21, 1))
sketch3.addConstraint(Sketcher.Constraint("Tangent", 21, 2, 22, 2))
sketch3.addConstraint(Sketcher.Constraint("Tangent", 22, 1, 23, 1))
sketch3.addConstraint(Sketcher.Constraint("Tangent", 23, 2, 12, 2))
sketch3.addConstraint(Sketcher.Constraint("Vertical", 5))
sketch3.addConstraint(Sketcher.Constraint("Vertical", 11))
sketch3.addConstraint(Sketcher.Constraint("Vertical", 15))
sketch3.addConstraint(Sketcher.Constraint("Vertical", 21))
sketch3.addConstraint(Sketcher.Constraint("Coincident", 12, 3, 2, 3))
sketch3.addConstraint(Sketcher.Constraint("Coincident", 14, 3, 0, 3))
sketch3.addConstraint(Sketcher.Constraint("Coincident", 16, 3, 10, 3))
sketch3.addConstraint(Sketcher.Constraint("Coincident", 18, 3, 8, 3))
sketch3.addConstraint(Sketcher.Constraint("Coincident", 20, 3, 6, 3))
sketch3.addConstraint(Sketcher.Constraint("Coincident", 22, 3, 4, 3))
sketch3.addConstraint(Sketcher.Constraint("Equal", 0, 4))
sketch3.addConstraint(Sketcher.Constraint("Equal", 4, 6))
sketch3.addConstraint(Sketcher.Constraint("Equal", 2, 8))
sketch3.addConstraint(Sketcher.Constraint("Equal", 6, 10))
sketch3.addConstraint(Sketcher.Constraint("Equal", 12, 18))
sketch3.addConstraint(Sketcher.Constraint("Equal", 16, 20))
sketch3.addConstraint(Sketcher.Constraint("Symmetric", 0, 3, 6, 3, -1, 1))
sketch3.addConstraint(Sketcher.Constraint("Symmetric", 2, 3, 8, 3, -1, 1))
sketch3.addConstraint(Sketcher.Constraint("Symmetric", 1, 2, 2, 2, -2))
sketch3.addConstraint(Sketcher.Constraint("Parallel", 3, 9))
sketch3.addConstraint(Sketcher.Constraint("Parallel", 7, 13))
sketch3.addConstraint(Sketcher.Constraint("Radius", 2, Q("1.6 in")))
sketch3.addConstraint(Sketcher.Constraint("Radius", 12, Q("1.5 in")))
sketch3.addConstraint(Sketcher.Constraint("DistanceY", 5, 1, 5, 2, Q("2 in")))
sketch3.addConstraint(Sketcher.Constraint("Radius", 0, Q("0.75 in")))
sketch3.addConstraint(Sketcher.Constraint("DistanceX", 0, 3, -1, 1, Q("2 in")))
sketch3.addConstraint(Sketcher.Constraint("DistanceY", 2, 3, -1, 1, Q("2 in")))
sketch3.setExpression("Constraints[45]", "Params.sketch3_radius")
sketch3.setExpression("Constraints[46]", "Params.sketch3_radius2")
sketch3.setExpression("Constraints[47]", "Params.sketch3_height")
sketch3.setExpression("Constraints[48]", "Params.sketch3_radius3")
pad2 = body.newObject("PartDesign::Pad", "Pad001")
pad2.Profile = sketch3
pad2.setExpression("Length", "Params.pad2_length")
pad2.Reversed = True

# Sketch on XY plane
sketch4 = body.newObject("Sketcher::SketchObject", "Sketch003")
sketch4.AttachmentSupport = (doc.getObject("XY_Plane"), [""])
sketch4.MapMode = "FlatFace"
sketch4.addGeometry(Part.Circle(Vector(0, -50.8, 0), Vector(0, 0, 1), 15.875), False)
sketch4.addGeometry(Part.Circle(Vector(0, 50.8, 0), Vector(0, 0, 1), 15.875), False)
sketch4.addGeometry(Part.ArcOfCircle(Part.Circle(Vector(-45.212, 5.588, 0), Vector(0, 0, 1), 2.032), math.radians(0), math.radians(90)), False)
sketch4.addGeometry(Part.LineSegment(Vector(-45.212, 7.62, 0), Vector(-56.388, 7.62, 0)), False)
sketch4.addGeometry(Part.ArcOfCircle(Part.Circle(Vector(-56.388, 5.588, 0), Vector(0, 0, 1), 2.032), math.radians(90), math.radians(180)), False)
sketch4.addGeometry(Part.LineSegment(Vector(-58.42, 5.588, 0), Vector(-58.42, -5.588, 0)), False)
sketch4.addGeometry(Part.ArcOfCircle(Part.Circle(Vector(-56.388, -5.588, 0), Vector(0, 0, 1), 2.032), math.radians(180), math.radians(270)), False)
sketch4.addGeometry(Part.LineSegment(Vector(-56.388, -7.62, 0), Vector(-45.212, -7.62, 0)), False)
sketch4.addGeometry(Part.ArcOfCircle(Part.Circle(Vector(-45.212, -5.588, 0), Vector(0, 0, 1), 2.032), math.radians(-90), math.radians(0)), False)
sketch4.addGeometry(Part.LineSegment(Vector(-43.18, -5.588, 0), Vector(-43.18, 5.588, 0)), False)
sketch4.addGeometry(Part.ArcOfCircle(Part.Circle(Vector(56.388, 5.588, 0), Vector(0, 0, 1), 2.032), math.radians(0), math.radians(90)), False)
sketch4.addGeometry(Part.LineSegment(Vector(56.388, 7.62, 0), Vector(45.212, 7.62, 0)), False)
sketch4.addGeometry(Part.ArcOfCircle(Part.Circle(Vector(45.212, 5.588, 0), Vector(0, 0, 1), 2.032), math.radians(90), math.radians(180)), False)
sketch4.addGeometry(Part.LineSegment(Vector(43.18, 5.588, 0), Vector(43.18, -5.588, 0)), False)
sketch4.addGeometry(Part.ArcOfCircle(Part.Circle(Vector(45.212, -5.588, 0), Vector(0, 0, 1), 2.032), math.radians(180), math.radians(270)), False)
sketch4.addGeometry(Part.LineSegment(Vector(45.212, -7.62, 0), Vector(56.388, -7.62, 0)), False)
sketch4.addGeometry(Part.ArcOfCircle(Part.Circle(Vector(56.388, -5.588, 0), Vector(0, 0, 1), 2.032), math.radians(-90), math.radians(0)), False)
sketch4.addGeometry(Part.LineSegment(Vector(58.42, -5.588, 0), Vector(58.42, 5.588, 0)), False)
sketch4.addConstraint(Sketcher.Constraint("Tangent", 2, 2, 3, 1))
sketch4.addConstraint(Sketcher.Constraint("Tangent", 3, 2, 4, 1))
sketch4.addConstraint(Sketcher.Constraint("Tangent", 4, 2, 5, 1))
sketch4.addConstraint(Sketcher.Constraint("Tangent", 5, 2, 6, 1))
sketch4.addConstraint(Sketcher.Constraint("Tangent", 6, 2, 7, 1))
sketch4.addConstraint(Sketcher.Constraint("Tangent", 7, 2, 8, 1))
sketch4.addConstraint(Sketcher.Constraint("Tangent", 8, 2, 9, 1))
sketch4.addConstraint(Sketcher.Constraint("Tangent", 9, 2, 2, 1))
sketch4.addConstraint(Sketcher.Constraint("Tangent", 10, 2, 11, 1))
sketch4.addConstraint(Sketcher.Constraint("Tangent", 11, 2, 12, 1))
sketch4.addConstraint(Sketcher.Constraint("Tangent", 12, 2, 13, 1))
sketch4.addConstraint(Sketcher.Constraint("Tangent", 13, 2, 14, 1))
sketch4.addConstraint(Sketcher.Constraint("Tangent", 14, 2, 15, 1))
sketch4.addConstraint(Sketcher.Constraint("Tangent", 15, 2, 16, 1))
sketch4.addConstraint(Sketcher.Constraint("Tangent", 16, 2, 17, 1))
sketch4.addConstraint(Sketcher.Constraint("Tangent", 17, 2, 10, 1))
sketch4.addConstraint(Sketcher.Constraint("Horizontal", 3))
sketch4.addConstraint(Sketcher.Constraint("Vertical", 5))
sketch4.addConstraint(Sketcher.Constraint("Horizontal", 7))
sketch4.addConstraint(Sketcher.Constraint("Vertical", 9))
sketch4.addConstraint(Sketcher.Constraint("Horizontal", 11))
sketch4.addConstraint(Sketcher.Constraint("Vertical", 13))
sketch4.addConstraint(Sketcher.Constraint("Horizontal", 15))
sketch4.addConstraint(Sketcher.Constraint("Vertical", 17))
sketch4.addConstraint(Sketcher.Constraint("Equal", 0, 1))
sketch4.addConstraint(Sketcher.Constraint("Equal", 2, 4))
sketch4.addConstraint(Sketcher.Constraint("Equal", 4, 6))
sketch4.addConstraint(Sketcher.Constraint("Equal", 6, 8))
sketch4.addConstraint(Sketcher.Constraint("Equal", 8, 10))
sketch4.addConstraint(Sketcher.Constraint("Equal", 10, 12))
sketch4.addConstraint(Sketcher.Constraint("Equal", 12, 14))
sketch4.addConstraint(Sketcher.Constraint("Equal", 14, 16))
sketch4.addConstraint(Sketcher.Constraint("Symmetric", 0, 3, 1, 3, -1, 1))
sketch4.addConstraint(Sketcher.Constraint("Symmetric", 6, 3, 10, 3, -1, 1))
sketch4.addConstraint(Sketcher.Constraint("Symmetric", 2, 3, 14, 3, -1, 1))
sketch4.addConstraint(Sketcher.Constraint("PointOnObject", 0, 3, -2))
sketch4.addConstraint(Sketcher.Constraint("Horizontal", 4, 3, 10, 3))
sketch4.addConstraint(Sketcher.Constraint("Equal", 15, 5))
sketch4.addConstraint(Sketcher.Constraint("Diameter", 0, Q("1.25 in")))
sketch4.addConstraint(Sketcher.Constraint("Radius", 2, Q("0.08 in")))
sketch4.addConstraint(Sketcher.Constraint("DistanceY", 0, 3, -1, 1, Q("2 in")))
sketch4.addConstraint(Sketcher.Constraint("DistanceX", 2, 3, 10, 3, Q("4 in")))
sketch4.addConstraint(Sketcher.Constraint("DistanceX", 3, 2, 3, 1, Q("0.44 in")))
sketch4.setExpression("Constraints[38]", "Params.sketch4_diameter")
sketch4.setExpression("Constraints[39]", "Params.sketch4_radius")
sketch4.setExpression("Constraints[42]", "Params.sketch4_width")
pocket2 = body.newObject("PartDesign::Pocket", "Pocket001")
pocket2.Profile = sketch4
pocket2.setExpression("Length", "Params.pocket2_length")
pocket2.Reversed = True

doc.recompute()
